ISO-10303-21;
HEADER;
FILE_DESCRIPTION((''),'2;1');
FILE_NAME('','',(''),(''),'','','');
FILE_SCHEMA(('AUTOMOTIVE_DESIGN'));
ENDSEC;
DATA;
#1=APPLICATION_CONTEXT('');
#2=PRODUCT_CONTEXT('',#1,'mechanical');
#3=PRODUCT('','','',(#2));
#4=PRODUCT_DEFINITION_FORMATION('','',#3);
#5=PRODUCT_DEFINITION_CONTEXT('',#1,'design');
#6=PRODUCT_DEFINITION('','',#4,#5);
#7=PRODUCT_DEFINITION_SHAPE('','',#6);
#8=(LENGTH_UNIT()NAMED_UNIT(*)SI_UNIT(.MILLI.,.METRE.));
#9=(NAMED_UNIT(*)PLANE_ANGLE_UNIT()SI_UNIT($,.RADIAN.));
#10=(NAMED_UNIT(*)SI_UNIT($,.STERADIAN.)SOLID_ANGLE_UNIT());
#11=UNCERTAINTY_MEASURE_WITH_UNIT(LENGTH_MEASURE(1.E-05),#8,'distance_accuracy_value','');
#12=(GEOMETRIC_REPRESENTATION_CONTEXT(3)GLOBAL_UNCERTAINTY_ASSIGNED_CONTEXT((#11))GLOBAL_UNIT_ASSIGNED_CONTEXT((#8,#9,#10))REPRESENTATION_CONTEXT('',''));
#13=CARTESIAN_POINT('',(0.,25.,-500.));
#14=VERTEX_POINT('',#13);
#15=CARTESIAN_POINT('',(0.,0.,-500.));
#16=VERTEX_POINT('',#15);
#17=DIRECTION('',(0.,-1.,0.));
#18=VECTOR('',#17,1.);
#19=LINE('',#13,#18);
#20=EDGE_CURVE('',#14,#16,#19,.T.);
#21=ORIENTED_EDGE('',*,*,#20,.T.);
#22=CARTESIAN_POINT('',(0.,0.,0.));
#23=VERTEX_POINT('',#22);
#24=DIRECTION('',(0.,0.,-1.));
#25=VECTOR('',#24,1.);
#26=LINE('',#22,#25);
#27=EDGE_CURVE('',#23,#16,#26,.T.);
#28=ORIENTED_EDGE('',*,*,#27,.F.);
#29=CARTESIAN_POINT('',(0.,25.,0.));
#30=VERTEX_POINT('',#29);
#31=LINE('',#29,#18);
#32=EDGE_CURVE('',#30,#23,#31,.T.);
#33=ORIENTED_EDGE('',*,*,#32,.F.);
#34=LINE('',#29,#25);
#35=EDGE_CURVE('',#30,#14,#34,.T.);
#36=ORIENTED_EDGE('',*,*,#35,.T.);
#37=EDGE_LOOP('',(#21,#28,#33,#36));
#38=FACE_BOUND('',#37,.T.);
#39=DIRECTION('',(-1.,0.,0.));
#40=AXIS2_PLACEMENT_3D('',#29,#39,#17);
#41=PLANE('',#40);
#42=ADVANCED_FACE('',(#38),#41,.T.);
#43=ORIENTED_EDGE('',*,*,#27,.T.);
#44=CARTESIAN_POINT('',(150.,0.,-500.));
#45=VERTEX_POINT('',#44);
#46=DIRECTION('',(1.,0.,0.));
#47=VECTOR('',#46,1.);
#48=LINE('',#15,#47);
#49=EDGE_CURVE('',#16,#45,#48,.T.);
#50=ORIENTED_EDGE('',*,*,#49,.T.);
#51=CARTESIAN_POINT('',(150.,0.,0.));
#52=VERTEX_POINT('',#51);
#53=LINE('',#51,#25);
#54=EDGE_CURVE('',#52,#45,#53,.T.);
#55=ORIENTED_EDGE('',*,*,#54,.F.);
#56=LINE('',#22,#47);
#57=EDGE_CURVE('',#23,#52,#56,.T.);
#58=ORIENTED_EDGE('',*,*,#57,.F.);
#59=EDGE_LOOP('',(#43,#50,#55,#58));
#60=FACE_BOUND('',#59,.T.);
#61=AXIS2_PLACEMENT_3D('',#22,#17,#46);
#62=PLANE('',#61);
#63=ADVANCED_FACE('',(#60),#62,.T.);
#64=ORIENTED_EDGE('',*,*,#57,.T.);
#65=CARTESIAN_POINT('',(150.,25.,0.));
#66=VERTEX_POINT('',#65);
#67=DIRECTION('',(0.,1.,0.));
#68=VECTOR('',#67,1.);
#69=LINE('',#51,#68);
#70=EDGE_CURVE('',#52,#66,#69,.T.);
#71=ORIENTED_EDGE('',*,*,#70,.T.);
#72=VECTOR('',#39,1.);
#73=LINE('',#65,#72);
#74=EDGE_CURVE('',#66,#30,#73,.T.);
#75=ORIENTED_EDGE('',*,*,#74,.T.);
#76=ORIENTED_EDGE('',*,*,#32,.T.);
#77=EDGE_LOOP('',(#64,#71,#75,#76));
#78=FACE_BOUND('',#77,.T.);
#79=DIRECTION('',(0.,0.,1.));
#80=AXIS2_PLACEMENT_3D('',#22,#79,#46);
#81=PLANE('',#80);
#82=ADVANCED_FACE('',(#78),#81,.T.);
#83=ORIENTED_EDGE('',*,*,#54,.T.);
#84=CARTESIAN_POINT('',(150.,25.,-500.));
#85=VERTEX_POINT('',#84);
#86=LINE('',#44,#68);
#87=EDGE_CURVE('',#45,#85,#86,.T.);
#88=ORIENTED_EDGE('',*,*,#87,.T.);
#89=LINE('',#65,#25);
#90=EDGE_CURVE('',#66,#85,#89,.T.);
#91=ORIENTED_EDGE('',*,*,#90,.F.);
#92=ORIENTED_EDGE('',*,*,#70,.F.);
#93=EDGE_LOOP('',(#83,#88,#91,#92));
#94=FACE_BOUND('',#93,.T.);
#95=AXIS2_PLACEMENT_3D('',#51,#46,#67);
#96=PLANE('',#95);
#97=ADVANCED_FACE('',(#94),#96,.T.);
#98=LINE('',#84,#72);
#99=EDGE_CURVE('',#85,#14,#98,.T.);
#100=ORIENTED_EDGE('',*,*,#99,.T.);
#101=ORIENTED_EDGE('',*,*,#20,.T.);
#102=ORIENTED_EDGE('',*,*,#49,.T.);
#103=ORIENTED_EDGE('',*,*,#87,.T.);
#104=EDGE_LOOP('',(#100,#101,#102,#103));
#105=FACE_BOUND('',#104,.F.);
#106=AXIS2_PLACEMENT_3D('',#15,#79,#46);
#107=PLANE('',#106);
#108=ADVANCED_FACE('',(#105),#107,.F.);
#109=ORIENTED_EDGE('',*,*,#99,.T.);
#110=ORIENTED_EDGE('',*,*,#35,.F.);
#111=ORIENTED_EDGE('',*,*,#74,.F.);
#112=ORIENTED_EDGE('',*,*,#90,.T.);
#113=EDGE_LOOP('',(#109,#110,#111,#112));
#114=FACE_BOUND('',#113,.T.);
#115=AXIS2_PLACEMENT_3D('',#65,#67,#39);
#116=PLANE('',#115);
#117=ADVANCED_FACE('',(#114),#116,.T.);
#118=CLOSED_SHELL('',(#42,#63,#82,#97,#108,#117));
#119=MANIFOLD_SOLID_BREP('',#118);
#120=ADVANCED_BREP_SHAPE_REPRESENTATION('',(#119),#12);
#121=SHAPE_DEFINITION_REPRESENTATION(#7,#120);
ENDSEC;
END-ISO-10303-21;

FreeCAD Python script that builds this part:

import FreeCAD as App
import Part
import Sketcher


def add_polygon(sketch, points):
    """Adds a closed chain of lines whose ends are joined by coincident constraints."""
    first, n = sketch.GeometryCount, len(points)
    for a, b in zip(points, points[1:] + points[:1]):
        sketch.addGeometry(Part.LineSegment(App.Vector(*a, 0), App.Vector(*b, 0)), False)
    for i in range(n):
        sketch.addConstraint(Sketcher.Constraint("Coincident", first + i, 2, first + (i + 1) % n, 1))

doc = App.newDocument("Part")
params = doc.addObject("Spreadsheet::Sheet", "Params")
for row, (alias, value) in enumerate([
    ("sketch1_width", "150 mm"),
    ("sketch1_height", "25 mm"),
    ("pad1_length", "500 mm"),
], start=1):
    params.set(f"A{row}", alias)
    params.set(f"B{row}", "=" + value)
    params.setAlias(f"B{row}", alias)

body = doc.addObject("PartDesign::Body", "Body")

# Sketch on XY plane
sketch1 = body.newObject("Sketcher::SketchObject", "Sketch")
sketch1.AttachmentSupport = (doc.getObject("XY_Plane"), [""])
sketch1.MapMode = "FlatFace"
add_polygon(sketch1, [(0, 25), (0, 0), (150, 0), (150, 25)])  # lines 0-3
sketch1.addConstraint(Sketcher.Constraint("Vertical", 0))
sketch1.addConstraint(Sketcher.Constraint("Horizontal", 1))
sketch1.addConstraint(Sketcher.Constraint("Vertical", 2))
sketch1.addConstraint(Sketcher.Constraint("Horizontal", 3))
sketch1.addConstraint(Sketcher.Constraint("Coincident", 0, 2, -1, 1))
sketch1.addConstraint(Sketcher.Constraint("DistanceX", 1, 1, 1, 2, 150.0))
sketch1.addConstraint(Sketcher.Constraint("DistanceY", 0, 2, 0, 1, 25.0))
sketch1.setExpression("Constraints[9]", "Params.sketch1_width")
sketch1.setExpression("Constraints[10]", "Params.sketch1_height")
pad1 = body.newObject("PartDesign::Pad", "Pad")
pad1.Profile = sketch1
pad1.setExpression("Length", "Params.pad1_length")
pad1.Reversed = True

doc.recompute()
